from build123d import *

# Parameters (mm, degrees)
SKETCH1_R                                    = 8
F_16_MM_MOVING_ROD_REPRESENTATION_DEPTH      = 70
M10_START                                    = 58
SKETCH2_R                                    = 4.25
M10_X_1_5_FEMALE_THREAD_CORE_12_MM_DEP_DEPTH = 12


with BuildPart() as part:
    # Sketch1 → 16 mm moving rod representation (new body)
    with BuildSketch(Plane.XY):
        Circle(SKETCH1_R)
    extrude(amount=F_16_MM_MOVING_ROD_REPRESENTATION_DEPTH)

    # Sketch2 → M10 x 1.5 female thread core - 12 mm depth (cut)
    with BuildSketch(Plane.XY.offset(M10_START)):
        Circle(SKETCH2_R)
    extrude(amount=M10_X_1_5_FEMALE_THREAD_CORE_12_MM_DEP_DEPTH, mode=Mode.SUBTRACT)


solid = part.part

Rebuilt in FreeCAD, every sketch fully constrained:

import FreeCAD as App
import Part
import Sketcher
from FreeCAD import Vector
Q = App.Units.Quantity

doc = App.newDocument("Part")
params = doc.addObject("Spreadsheet::Sheet", "Params")
for row, (alias, value) in enumerate([
    ("sketch1_diameter", "16 mm"),
    ("pad1_length", "70 mm"),
    ("sketch2_diameter", "8.5 mm"),
    ("pocket1_length", "12 mm"),
], start=1):
    params.set(f"A{row}", alias)
    params.set(f"B{row}", "=" + value)
    params.setAlias(f"B{row}", alias)

body = doc.addObject("PartDesign::Body", "Body")

sketch1 = body.newObject("Sketcher::SketchObject", "Sketch")
sketch1.AttachmentSupport = (doc.getObject("XY_Plane"), [""])
sketch1.MapMode = "FlatFace"
sketch1.addGeometry(Part.Circle(Vector(0, 0, 0), Vector(0, 0, 1), 8), False)
sketch1.addConstraint([
    Sketcher.Constraint("Coincident", 0, 3, -1, 1),
    Sketcher.Constraint("Diameter", 0, Q("16 mm")),
])
sketch1.setExpression("Constraints[1]", "Params.sketch1_diameter")
pad1 = body.newObject("PartDesign::Pad", "Pad")
pad1.Profile = sketch1
pad1.setExpression("Length", "Params.pad1_length")

sketch2 = body.newObject("Sketcher::SketchObject", "Sketch001")
sketch2.AttachmentSupport = (doc.getObject("XY_Plane"), [""])
sketch2.MapMode = "FlatFace"
sketch2.AttachmentOffset = App.Placement(Vector(0, 0, 58), App.Rotation())
sketch2.addGeometry(Part.Circle(Vector(0, 0, 0), Vector(0, 0, 1), 4.2), False)
sketch2.addConstraint([
    Sketcher.Constraint("Coincident", 0, 3, -1, 1),
    Sketcher.Constraint("Diameter", 0, Q("8.5 mm")),
])
sketch2.setExpression("Constraints[1]", "Params.sketch2_diameter")
pocket1 = body.newObject("PartDesign::Pocket", "Pocket")
pocket1.Profile = sketch2
pocket1.setExpression("Length", "Params.pocket1_length")
pocket1.Reversed = True

doc.recompute()
